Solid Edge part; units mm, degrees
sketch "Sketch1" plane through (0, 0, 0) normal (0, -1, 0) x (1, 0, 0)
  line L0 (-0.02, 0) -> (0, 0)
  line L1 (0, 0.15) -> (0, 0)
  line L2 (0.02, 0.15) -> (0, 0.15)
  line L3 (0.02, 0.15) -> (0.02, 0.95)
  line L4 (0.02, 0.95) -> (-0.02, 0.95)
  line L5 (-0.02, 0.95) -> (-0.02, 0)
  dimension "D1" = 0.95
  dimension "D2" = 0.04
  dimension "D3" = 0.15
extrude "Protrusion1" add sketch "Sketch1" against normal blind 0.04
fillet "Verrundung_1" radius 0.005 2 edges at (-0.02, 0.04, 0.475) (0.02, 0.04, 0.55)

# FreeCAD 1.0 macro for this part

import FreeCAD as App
import Part
import Sketcher

V = App.Vector
Q = App.Units.Quantity


def edges_at(feature, points):
    """Names of the edges that pass closest to the given points."""
    edges = feature.Shape.Edges
    near = lambda p: min(range(len(edges)), key=lambda i: edges[i].distToShape(Part.Vertex(*p))[0])
    return sorted({f"Edge{near(p) + 1}" for p in points})

doc = App.newDocument("Part")
body = doc.addObject("PartDesign::Body", "Body")

# Sketch on XZ plane
sketch1 = doc.addObject("Sketcher::SketchObject", "Sketch")
body.addObject(sketch1)
sketch1.AttachmentSupport = (doc.XZ_Plane, [""])
sketch1.MapMode = "FlatFace"
sketch1.addGeometry([
    Part.LineSegment(V(-0.02, 0.95, 0), V(-0.02, 0, 0)),  # 0
    Part.LineSegment(V(-0.02, 0, 0), V(0, 0, 0)),  # 1
    Part.LineSegment(V(0, 0, 0), V(0, 0.15, 0)),  # 2
    Part.LineSegment(V(0, 0.15, 0), V(0.02, 0.15, 0)),  # 3
    Part.LineSegment(V(0.02, 0.15, 0), V(0.02, 0.95, 0)),  # 4
    Part.LineSegment(V(0.02, 0.95, 0), V(-0.02, 0.95, 0)),  # 5
], False)
sketch1.addConstraint([
    Sketcher.Constraint("Coincident", 0, 2, 1, 1),
    Sketcher.Constraint("Coincident", 1, 2, 2, 1),
    Sketcher.Constraint("Coincident", 2, 2, 3, 1),
    Sketcher.Constraint("Coincident", 3, 2, 4, 1),
    Sketcher.Constraint("Coincident", 4, 2, 5, 1),
    Sketcher.Constraint("Coincident", 5, 2, 0, 1),
    Sketcher.Constraint("Vertical", 0),
    Sketcher.Constraint("Horizontal", 1),
    Sketcher.Constraint("Vertical", 2),
    Sketcher.Constraint("Horizontal", 3),
    Sketcher.Constraint("Vertical", 4),
    Sketcher.Constraint("Horizontal", 5),
    Sketcher.Constraint("Coincident", 1, 2, -1, 1),
    Sketcher.Constraint("Equal", 1, 3),
    Sketcher.Constraint("DistanceX", 1, 1, 1, 2, Q("0.02 mm")),
    Sketcher.Constraint("DistanceY", 4, 1, 4, 2, Q("0.8 mm")),
    Sketcher.Constraint("DistanceY", 0, 2, 0, 1, Q("0.95 mm")),
])
pad1 = doc.addObject("PartDesign::Pad", "Pad")
body.addObject(pad1)
pad1.Profile = sketch1
pad1.Length = 0.04
pad1.Reversed = True
doc.recompute()

fillet = doc.addObject("PartDesign::Fillet", "Fillet")
body.addObject(fillet)
fillet.Base = (pad1, edges_at(pad1, [(-0.02, 0.04, 0.475), (0.02, 0.04, 0.55)]))
fillet.Radius = 0.005

doc.recompute()
